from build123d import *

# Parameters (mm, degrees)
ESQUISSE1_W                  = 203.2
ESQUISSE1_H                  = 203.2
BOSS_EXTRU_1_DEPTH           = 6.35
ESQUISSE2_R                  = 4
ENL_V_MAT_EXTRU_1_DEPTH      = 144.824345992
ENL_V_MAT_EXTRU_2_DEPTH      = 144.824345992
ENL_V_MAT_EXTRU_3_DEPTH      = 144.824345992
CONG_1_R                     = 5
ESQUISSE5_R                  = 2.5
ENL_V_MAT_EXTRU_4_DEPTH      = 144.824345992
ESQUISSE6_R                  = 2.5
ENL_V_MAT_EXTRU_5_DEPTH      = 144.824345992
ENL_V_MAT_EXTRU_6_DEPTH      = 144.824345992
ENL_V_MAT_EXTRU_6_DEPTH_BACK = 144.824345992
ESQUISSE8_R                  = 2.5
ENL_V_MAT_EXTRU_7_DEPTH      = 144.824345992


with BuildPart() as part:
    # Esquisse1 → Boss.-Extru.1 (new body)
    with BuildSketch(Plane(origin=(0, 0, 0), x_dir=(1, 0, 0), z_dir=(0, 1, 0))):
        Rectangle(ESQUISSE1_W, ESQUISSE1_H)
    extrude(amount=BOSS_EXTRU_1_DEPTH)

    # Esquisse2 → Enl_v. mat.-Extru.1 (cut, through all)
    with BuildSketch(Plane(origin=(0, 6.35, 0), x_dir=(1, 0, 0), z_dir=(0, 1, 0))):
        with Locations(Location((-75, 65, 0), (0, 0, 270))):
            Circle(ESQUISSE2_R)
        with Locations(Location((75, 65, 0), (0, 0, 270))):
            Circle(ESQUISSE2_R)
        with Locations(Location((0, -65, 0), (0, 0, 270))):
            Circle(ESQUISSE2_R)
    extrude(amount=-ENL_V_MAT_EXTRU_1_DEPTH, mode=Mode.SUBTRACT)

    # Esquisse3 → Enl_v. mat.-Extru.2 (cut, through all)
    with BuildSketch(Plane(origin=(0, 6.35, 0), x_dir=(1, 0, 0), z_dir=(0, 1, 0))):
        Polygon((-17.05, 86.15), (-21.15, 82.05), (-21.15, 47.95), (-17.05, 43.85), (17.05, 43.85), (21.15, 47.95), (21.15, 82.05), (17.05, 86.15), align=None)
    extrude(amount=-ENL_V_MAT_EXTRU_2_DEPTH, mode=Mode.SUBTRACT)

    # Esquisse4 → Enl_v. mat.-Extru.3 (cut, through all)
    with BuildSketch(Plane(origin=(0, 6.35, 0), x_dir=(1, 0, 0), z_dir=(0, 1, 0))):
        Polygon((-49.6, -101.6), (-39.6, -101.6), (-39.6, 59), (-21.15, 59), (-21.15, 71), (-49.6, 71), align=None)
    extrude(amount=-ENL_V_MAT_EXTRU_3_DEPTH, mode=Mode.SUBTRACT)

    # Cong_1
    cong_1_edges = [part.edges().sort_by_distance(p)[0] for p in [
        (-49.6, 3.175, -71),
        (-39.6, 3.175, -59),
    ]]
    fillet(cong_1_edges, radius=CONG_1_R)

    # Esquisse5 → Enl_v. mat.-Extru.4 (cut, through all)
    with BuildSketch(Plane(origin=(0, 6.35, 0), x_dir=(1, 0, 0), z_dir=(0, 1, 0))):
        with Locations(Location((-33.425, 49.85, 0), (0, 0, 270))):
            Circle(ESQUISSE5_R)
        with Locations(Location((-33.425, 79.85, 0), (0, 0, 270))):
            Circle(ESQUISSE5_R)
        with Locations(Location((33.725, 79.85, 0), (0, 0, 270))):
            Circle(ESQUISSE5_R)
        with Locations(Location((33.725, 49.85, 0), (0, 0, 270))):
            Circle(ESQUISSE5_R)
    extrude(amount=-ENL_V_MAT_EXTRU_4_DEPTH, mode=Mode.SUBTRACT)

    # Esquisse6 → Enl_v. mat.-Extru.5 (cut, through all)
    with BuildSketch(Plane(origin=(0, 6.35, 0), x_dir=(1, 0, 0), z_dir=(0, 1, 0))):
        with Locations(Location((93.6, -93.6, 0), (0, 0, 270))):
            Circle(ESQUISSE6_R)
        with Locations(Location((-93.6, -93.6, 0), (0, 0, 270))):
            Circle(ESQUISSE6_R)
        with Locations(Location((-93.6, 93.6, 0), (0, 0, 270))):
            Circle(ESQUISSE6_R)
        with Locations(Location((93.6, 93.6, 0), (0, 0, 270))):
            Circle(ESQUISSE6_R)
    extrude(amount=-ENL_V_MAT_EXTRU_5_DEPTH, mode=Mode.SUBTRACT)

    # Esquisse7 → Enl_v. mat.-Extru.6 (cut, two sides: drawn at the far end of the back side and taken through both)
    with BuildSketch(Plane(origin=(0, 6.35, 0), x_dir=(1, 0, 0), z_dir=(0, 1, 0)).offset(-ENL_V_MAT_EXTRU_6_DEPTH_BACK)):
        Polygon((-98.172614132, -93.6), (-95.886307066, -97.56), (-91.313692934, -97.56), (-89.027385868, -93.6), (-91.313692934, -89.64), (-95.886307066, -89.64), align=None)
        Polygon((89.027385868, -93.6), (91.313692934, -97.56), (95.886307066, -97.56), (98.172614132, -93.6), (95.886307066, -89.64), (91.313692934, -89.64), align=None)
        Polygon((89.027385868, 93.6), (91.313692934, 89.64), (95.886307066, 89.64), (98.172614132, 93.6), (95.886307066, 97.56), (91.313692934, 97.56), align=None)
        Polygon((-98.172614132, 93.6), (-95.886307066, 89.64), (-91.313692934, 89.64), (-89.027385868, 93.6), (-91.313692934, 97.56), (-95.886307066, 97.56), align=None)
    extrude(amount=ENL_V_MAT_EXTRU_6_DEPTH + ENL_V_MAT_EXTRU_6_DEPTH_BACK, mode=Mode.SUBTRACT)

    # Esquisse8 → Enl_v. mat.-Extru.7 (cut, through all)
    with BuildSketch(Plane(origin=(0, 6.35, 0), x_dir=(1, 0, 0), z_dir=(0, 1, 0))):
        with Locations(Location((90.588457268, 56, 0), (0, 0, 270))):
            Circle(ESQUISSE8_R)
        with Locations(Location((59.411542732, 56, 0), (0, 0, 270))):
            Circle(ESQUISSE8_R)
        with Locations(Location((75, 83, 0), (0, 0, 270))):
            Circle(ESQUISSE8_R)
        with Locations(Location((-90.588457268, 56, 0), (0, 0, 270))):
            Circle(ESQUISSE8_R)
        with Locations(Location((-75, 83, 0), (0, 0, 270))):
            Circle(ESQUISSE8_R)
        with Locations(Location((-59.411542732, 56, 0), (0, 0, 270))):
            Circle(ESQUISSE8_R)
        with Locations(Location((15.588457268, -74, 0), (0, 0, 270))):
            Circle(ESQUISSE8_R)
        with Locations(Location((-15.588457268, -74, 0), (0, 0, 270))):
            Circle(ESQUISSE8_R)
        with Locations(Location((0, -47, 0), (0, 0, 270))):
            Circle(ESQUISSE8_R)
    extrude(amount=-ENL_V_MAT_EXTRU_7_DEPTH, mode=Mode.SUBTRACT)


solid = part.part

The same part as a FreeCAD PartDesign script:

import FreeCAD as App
import Part
import Sketcher

V = App.Vector
Q = App.Units.Quantity


def edges_at(feature, points):
    """Names of the edges that pass closest to the given points."""
    edges = feature.Shape.Edges
    near = lambda p: min(range(len(edges)), key=lambda i: edges[i].distToShape(Part.Vertex(*p))[0])
    return sorted({f"Edge{near(p) + 1}" for p in points})

doc = App.newDocument("Part")
body = doc.addObject("PartDesign::Body", "Body")

sketch1 = doc.addObject("Sketcher::SketchObject", "Sketch")
body.addObject(sketch1)
sketch1.AttachmentSupport = (doc.XZ_Plane, [""])
sketch1.MapMode = "FlatFace"
sketch1.addGeometry([
    Part.LineSegment(V(-102, -102, 0), V(-102, 102, 0)),
    Part.LineSegment(V(-102, 102, 0), V(102, 102, 0)),
    Part.LineSegment(V(102, 102, 0), V(102, -102, 0)),
    Part.LineSegment(V(102, -102, 0), V(-102, -102, 0)),
], False)
sketch1.addConstraint([
    Sketcher.Constraint("Coincident", 0, 2, 1, 1),
    Sketcher.Constraint("Coincident", 1, 2, 2, 1),
    Sketcher.Constraint("Coincident", 2, 2, 3, 1),
    Sketcher.Constraint("Coincident", 3, 2, 0, 1),
    Sketcher.Constraint("Vertical", 0),
    Sketcher.Constraint("Horizontal", 1),
    Sketcher.Constraint("Vertical", 2),
    Sketcher.Constraint("Horizontal", 3),
    Sketcher.Constraint("Symmetric", 0, 2, 2, 2, -1, 1),
    Sketcher.Constraint("Equal", 3, 0),
    Sketcher.Constraint("DistanceX", 1, 1, 1, 2, 203.2),
])
pad1 = doc.addObject("PartDesign::Pad", "Pad")
body.addObject(pad1)
pad1.Profile = sketch1
pad1.Length = 6.35
pad1.Reversed = True

sketch2 = doc.addObject("Sketcher::SketchObject", "Sketch001")
body.addObject(sketch2)
sketch2.AttachmentSupport = (doc.XZ_Plane, [""])
sketch2.MapMode = "FlatFace"
sketch2.AttachmentOffset = App.Placement(V(0, 0, -6.35), App.Rotation())
sketch2.addGeometry([
    Part.Circle(V(-75, -65, 0), V(0, 0, 1), 4),
    Part.Circle(V(75, -65, 0), V(0, 0, 1), 4),
    Part.Circle(V(0, 65, 0), V(0, 0, 1), 4),
], False)
sketch2.addConstraint([
    Sketcher.Constraint("Equal", 0, 1),
    Sketcher.Constraint("Equal", 1, 2),
    Sketcher.Constraint("Symmetric", 0, 3, 1, 3, -2),
    Sketcher.Constraint("PointOnObject", 2, 3, -2),
    Sketcher.Constraint("Diameter", 0, 8.0),
    Sketcher.Constraint("DistanceX", 0, 3, -1, 1, 75.0),
    Sketcher.Constraint("DistanceY", 0, 3, -1, 1, 65.0),
    Sketcher.Constraint("DistanceY", -1, 1, 2, 3, 65.0),
])
pocket1 = doc.addObject("PartDesign::Pocket", "Pocket")
body.addObject(pocket1)
pocket1.Profile = sketch2
pocket1.Type = "ThroughAll"
pocket1.Reversed = True

sketch3 = doc.addObject("Sketcher::SketchObject", "Sketch002")
body.addObject(sketch3)
sketch3.AttachmentSupport = (doc.XZ_Plane, [""])
sketch3.MapMode = "FlatFace"
sketch3.AttachmentOffset = App.Placement(V(0, 0, -6.35), App.Rotation())
sketch3.addGeometry([
    Part.LineSegment(V(-17, -86, 0), V(-21, -82, 0)),
    Part.LineSegment(V(-21, -82, 0), V(-21, -48, 0)),
    Part.LineSegment(V(-21, -48, 0), V(-17, -44, 0)),
    Part.LineSegment(V(-17, -44, 0), V(17, -44, 0)),
    Part.LineSegment(V(17, -44, 0), V(21, -48, 0)),
    Part.LineSegment(V(21, -48, 0), V(21, -82, 0)),
    Part.LineSegment(V(21, -82, 0), V(17, -86, 0)),
    Part.LineSegment(V(17, -86, 0), V(-17, -86, 0)),
], False)
sketch3.addConstraint([
    Sketcher.Constraint("Coincident", 0, 2, 1, 1),
    Sketcher.Constraint("Coincident", 1, 2, 2, 1),
    Sketcher.Constraint("Coincident", 2, 2, 3, 1),
    Sketcher.Constraint("Coincident", 3, 2, 4, 1),
    Sketcher.Constraint("Coincident", 4, 2, 5, 1),
    Sketcher.Constraint("Coincident", 5, 2, 6, 1),
    Sketcher.Constraint("Coincident", 6, 2, 7, 1),
    Sketcher.Constraint("Coincident", 7, 2, 0, 1),
    Sketcher.Constraint("Vertical", 1),
    Sketcher.Constraint("Horizontal", 3),
    Sketcher.Constraint("Vertical", 5),
    Sketcher.Constraint("Horizontal", 7),
    Sketcher.Constraint("Symmetric", 1, 2, 4, 2, -2),
    Sketcher.Constraint("Perpendicular", 0, 2),
    Sketcher.Constraint("Perpendicular", 2, 4),
    Sketcher.Constraint("Perpendicular", 4, 6),
    Sketcher.Constraint("Horizontal", 0, 2, 5, 2),
    Sketcher.Constraint("Vertical", 3, 2, 6, 2),
    Sketcher.Constraint("Vertical", 2, 2, 7, 2),
    Sketcher.Constraint("Equal", 7, 1),
    Sketcher.Constraint("DistanceX", 3, 1, 3, 2, 34.1),
    Sketcher.Constraint("DistanceX", 1, 2, 2, 2, 4.1),
    Sketcher.Constraint("DistanceY", 0, 2, -1, 1, 82.05),
])
pocket2 = doc.addObject("PartDesign::Pocket", "Pocket001")
body.addObject(pocket2)
pocket2.Profile = sketch3
pocket2.Type = "ThroughAll"
pocket2.Reversed = True

sketch4 = doc.addObject("Sketcher::SketchObject", "Sketch003")
body.addObject(sketch4)
sketch4.AttachmentSupport = (doc.XZ_Plane, [""])
sketch4.MapMode = "FlatFace"
sketch4.AttachmentOffset = App.Placement(V(0, 0, -6.35), App.Rotation())
sketch4.addGeometry([
    Part.LineSegment(V(-50, 102, 0), V(-40, 102, 0)),
    Part.LineSegment(V(-40, 102, 0), V(-40, -59, 0)),
    Part.LineSegment(V(-40, -59, 0), V(-21, -59, 0)),
    Part.LineSegment(V(-21, -59, 0), V(-21, -71, 0)),
    Part.LineSegment(V(-21, -71, 0), V(-50, -71, 0)),
    Part.LineSegment(V(-50, -71, 0), V(-50, 102, 0)),
], False)
sketch4.addConstraint([
    Sketcher.Constraint("Coincident", 0, 2, 1, 1),
    Sketcher.Constraint("Coincident", 1, 2, 2, 1),
    Sketcher.Constraint("Coincident", 2, 2, 3, 1),
    Sketcher.Constraint("Coincident", 3, 2, 4, 1),
    Sketcher.Constraint("Coincident", 4, 2, 5, 1),
    Sketcher.Constraint("Coincident", 5, 2, 0, 1),
    Sketcher.Constraint("Horizontal", 0),
    Sketcher.Constraint("Vertical", 1),
    Sketcher.Constraint("Horizontal", 2),
    Sketcher.Constraint("Vertical", 3),
    Sketcher.Constraint("Horizontal", 4),
    Sketcher.Constraint("Vertical", 5),
    Sketcher.Constraint("DistanceX", 0, 1, 0, 2, 10.0),
    Sketcher.Constraint("DistanceY", 3, 2, 3, 1, 12.0),
    Sketcher.Constraint("DistanceY", 1, 2, 1, 1, 160.6),
    Sketcher.Constraint("DistanceY", 1, 2, -1, 1, 59.0),
    Sketcher.Constraint("DistanceX", 2, 1, 2, 2, 18.45),
    Sketcher.Constraint("DistanceX", 0, 2, -1, 1, 39.6),
])
pocket3 = doc.addObject("PartDesign::Pocket", "Pocket002")
body.addObject(pocket3)
pocket3.Profile = sketch4
pocket3.Type = "ThroughAll"
pocket3.Reversed = True
doc.recompute()

fillet = doc.addObject("PartDesign::Fillet", "Fillet")
body.addObject(fillet)
fillet.Base = (pocket3, edges_at(pocket3, [(-49.6, 3.175, -71), (-39.6, 3.175, -59)]))
fillet.Radius = 5

sketch5 = doc.addObject("Sketcher::SketchObject", "Sketch004")
body.addObject(sketch5)
sketch5.AttachmentSupport = (doc.XZ_Plane, [""])
sketch5.MapMode = "FlatFace"
sketch5.AttachmentOffset = App.Placement(V(0, 0, -6.35), App.Rotation())
sketch5.addGeometry([
    Part.Circle(V(-33.4, -49.9, 0), V(0, 0, 1), 2.5),
    Part.Circle(V(-33.4, -79.8, 0), V(0, 0, 1), 2.5),
    Part.Circle(V(33.7, -79.8, 0), V(0, 0, 1), 2.5),
    Part.Circle(V(33.7, -49.9, 0), V(0, 0, 1), 2.5),
], False)
sketch5.addConstraint([
    Sketcher.Constraint("Equal", 0, 1),
    Sketcher.Constraint("Equal", 1, 2),
    Sketcher.Constraint("Equal", 2, 3),
    Sketcher.Constraint("Horizontal", 1, 3, 2, 3),
    Sketcher.Constraint("Horizontal", 0, 3, 3, 3),
    Sketcher.Constraint("Vertical", 0, 3, 1, 3),
    Sketcher.Constraint("Vertical", 2, 3, 3, 3),
    Sketcher.Constraint("Diameter", 0, 5.0),
    Sketcher.Constraint("DistanceY", 1, 3, 0, 3, 30.0),
    Sketcher.Constraint("DistanceY", 0, 3, -1, 1, 49.85),
    Sketcher.Constraint("DistanceX", 1, 3, 2, 3, 67.15),
    Sketcher.Constraint("DistanceX", 0, 3, -1, 1, 33.425),
])
pocket4 = doc.addObject("PartDesign::Pocket", "Pocket003")
body.addObject(pocket4)
pocket4.Profile = sketch5
pocket4.Type = "ThroughAll"
pocket4.Reversed = True

sketch6 = doc.addObject("Sketcher::SketchObject", "Sketch005")
body.addObject(sketch6)
sketch6.AttachmentSupport = (doc.XZ_Plane, [""])
sketch6.MapMode = "FlatFace"
sketch6.AttachmentOffset = App.Placement(V(0, 0, -6.35), App.Rotation())
sketch6.addGeometry([
    Part.Circle(V(93.6, 93.6, 0), V(0, 0, 1), 2.5),
    Part.Circle(V(-93.6, 93.6, 0), V(0, 0, 1), 2.5),
    Part.Circle(V(-93.6, -93.6, 0), V(0, 0, 1), 2.5),
    Part.Circle(V(93.6, -93.6, 0), V(0, 0, 1), 2.5),
], False)
sketch6.addConstraint([
    Sketcher.Constraint("Equal", 0, 1),
    Sketcher.Constraint("Equal", 1, 2),
    Sketcher.Constraint("Equal", 2, 3),
    Sketcher.Constraint("Symmetric", 0, 3, 2, 3, -1, 1),
    Sketcher.Constraint("Symmetric", 1, 3, 3, 3, -1, 1),
    Sketcher.Constraint("Symmetric", 0, 3, 1, 3, -2),
    Sketcher.Constraint("Diameter", 0, 5.0),
    Sketcher.Constraint("DistanceX", -1, 1, 0, 3, 93.6),
    Sketcher.Constraint("DistanceY", -1, 1, 0, 3, 93.6),
])
pocket5 = doc.addObject("PartDesign::Pocket", "Pocket004")
body.addObject(pocket5)
pocket5.Profile = sketch6
pocket5.Type = "ThroughAll"
pocket5.Reversed = True

sketch7 = doc.addObject("Sketcher::SketchObject", "Sketch006")
body.addObject(sketch7)
sketch7.AttachmentSupport = (doc.XZ_Plane, [""])
sketch7.MapMode = "FlatFace"
sketch7.AttachmentOffset = App.Placement(V(0, 0, -6.35), App.Rotation())
sketch7.addGeometry([
    Part.LineSegment(V(-98.2, 93.6, 0), V(-95.9, 97.6, 0)),
    Part.LineSegment(V(-95.9, 97.6, 0), V(-91.3, 97.6, 0)),
    Part.LineSegment(V(-91.3, 97.6, 0), V(-89, 93.6, 0)),
    Part.LineSegment(V(-89, 93.6, 0), V(-91.3, 89.6, 0)),
    Part.LineSegment(V(-91.3, 89.6, 0), V(-95.9, 89.6, 0)),
    Part.LineSegment(V(-95.9, 89.6, 0), V(-98.2, 93.6, 0)),
    Part.LineSegment(V(89, 93.6, 0), V(91.3, 97.6, 0)),
    Part.LineSegment(V(91.3, 97.6, 0), V(95.9, 97.6, 0)),
    Part.LineSegment(V(95.9, 97.6, 0), V(98.2, 93.6, 0)),
    Part.LineSegment(V(98.2, 93.6, 0), V(95.9, 89.6, 0)),
    Part.LineSegment(V(95.9, 89.6, 0), V(91.3, 89.6, 0)),
    Part.LineSegment(V(91.3, 89.6, 0), V(89, 93.6, 0)),
    Part.LineSegment(V(89, -93.6, 0), V(91.3, -89.6, 0)),
    Part.LineSegment(V(91.3, -89.6, 0), V(95.9, -89.6, 0)),
    Part.LineSegment(V(95.9, -89.6, 0), V(98.2, -93.6, 0)),
    Part.LineSegment(V(98.2, -93.6, 0), V(95.9, -97.6, 0)),
    Part.LineSegment(V(95.9, -97.6, 0), V(91.3, -97.6, 0)),
    Part.LineSegment(V(91.3, -97.6, 0), V(89, -93.6, 0)),
    Part.LineSegment(V(-98.2, -93.6, 0), V(-95.9, -89.6, 0)),
    Part.LineSegment(V(-95.9, -89.6, 0), V(-91.3, -89.6, 0)),
    Part.LineSegment(V(-91.3, -89.6, 0), V(-89, -93.6, 0)),
    Part.LineSegment(V(-89, -93.6, 0), V(-91.3, -97.6, 0)),
    Part.LineSegment(V(-91.3, -97.6, 0), V(-95.9, -97.6, 0)),
    Part.LineSegment(V(-95.9, -97.6, 0), V(-98.2, -93.6, 0)),
], False)
sketch7.addConstraint([
    Sketcher.Constraint("Coincident", 0, 2, 1, 1),
    Sketcher.Constraint("Coincident", 1, 2, 2, 1),
    Sketcher.Constraint("Coincident", 2, 2, 3, 1),
    Sketcher.Constraint("Coincident", 3, 2, 4, 1),
    Sketcher.Constraint("Coincident", 4, 2, 5, 1),
    Sketcher.Constraint("Coincident", 5, 2, 0, 1),
    Sketcher.Constraint("Coincident", 6, 2, 7, 1),
    Sketcher.Constraint("Coincident", 7, 2, 8, 1),
    Sketcher.Constraint("Coincident", 8, 2, 9, 1),
    Sketcher.Constraint("Coincident", 9, 2, 10, 1),
    Sketcher.Constraint("Coincident", 10, 2, 11, 1),
    Sketcher.Constraint("Coincident", 11, 2, 6, 1),
    Sketcher.Constraint("Coincident", 12, 2, 13, 1),
    Sketcher.Constraint("Coincident", 13, 2, 14, 1),
    Sketcher.Constraint("Coincident", 14, 2, 15, 1),
    Sketcher.Constraint("Coincident", 15, 2, 16, 1),
    Sketcher.Constraint("Coincident", 16, 2, 17, 1),
    Sketcher.Constraint("Coincident", 17, 2, 12, 1),
    Sketcher.Constraint("Coincident", 18, 2, 19, 1),
    Sketcher.Constraint("Coincident", 19, 2, 20, 1),
    Sketcher.Constraint("Coincident", 20, 2, 21, 1),
    Sketcher.Constraint("Coincident", 21, 2, 22, 1),
    Sketcher.Constraint("Coincident", 22, 2, 23, 1),
    Sketcher.Constraint("Coincident", 23, 2, 18, 1),
    Sketcher.Constraint("Horizontal", 1),
    Sketcher.Constraint("Horizontal", 4),
    Sketcher.Constraint("Horizontal", 7),
    Sketcher.Constraint("Horizontal", 10),
    Sketcher.Constraint("Horizontal", 13),
    Sketcher.Constraint("Horizontal", 16),
    Sketcher.Constraint("Horizontal", 19),
    Sketcher.Constraint("Horizontal", 22),
    Sketcher.Constraint("Symmetric", 3, 2, 12, 2, -1, 1),
    Sketcher.Constraint("Symmetric", 5, 2, 14, 2, -1, 1),
    Sketcher.Constraint("Symmetric", 0, 2, 15, 2, -1, 1),
    Sketcher.Constraint("Symmetric", 2, 2, 17, 2, -1, 1),
    Sketcher.Constraint("Symmetric", 9, 2, 18, 2, -1, 1),
    Sketcher.Constraint("Symmetric", 11, 2, 20, 2, -1, 1),
    Sketcher.Constraint("Symmetric", 6, 2, 21, 2, -1, 1),
    Sketcher.Constraint("Symmetric", 8, 2, 23, 2, -1, 1),
    Sketcher.Constraint("Symmetric", 1, 2, 6, 2, -2),
    Sketcher.Constraint("Symmetric", 5, 2, 8, 2, -2),
    Sketcher.Constraint("Symmetric", 4, 2, 9, 2, -2),
    Sketcher.Constraint("Symmetric", 2, 2, 11, 2, -2),
    Sketcher.Constraint("Parallel", 0, 3),
    Sketcher.Constraint("Parallel", 2, 5),
    Sketcher.Constraint("Parallel", 3, 6),
    Sketcher.Constraint("Parallel", 5, 8),
    Sketcher.Constraint("Parallel", 8, 11),
    Sketcher.Constraint("Parallel", 11, 14),
    Sketcher.Constraint("Parallel", 14, 17),
    Sketcher.Constraint("Parallel", 17, 20),
    Sketcher.Constraint("Parallel", 20, 23),
    Sketcher.Constraint("Horizontal", 2, 2, 5, 2),
    Sketcher.Constraint("Vertical", 1, 2, 3, 2),
    Sketcher.Constraint("Angle", 0, Q("60 deg")),
    Sketcher.Constraint("DistanceY", -1, 1, 2, 2, 93.6),
    Sketcher.Constraint("DistanceX", 0, 2, 6, 2, 187.2),
    Sketcher.Constraint("DistanceY", -1, 1, 0, 2, 97.56),
    Sketcher.Constraint("DistanceX", 1, 1, 1, 2, 4.572614),
])
pocket6 = doc.addObject("PartDesign::Pocket", "Pocket005")
body.addObject(pocket6)
pocket6.Profile = sketch7
pocket6.Type = "ThroughAll"
pocket6.Midplane = True

sketch8 = doc.addObject("Sketcher::SketchObject", "Sketch007")
body.addObject(sketch8)
sketch8.AttachmentSupport = (doc.XZ_Plane, [""])
sketch8.MapMode = "FlatFace"
sketch8.AttachmentOffset = App.Placement(V(0, 0, -6.35), App.Rotation())
sketch8.addGeometry([
    Part.Circle(V(90.6, -56, 0), V(0, 0, 1), 2.5),
    Part.Circle(V(59.4, -56, 0), V(0, 0, 1), 2.5),
    Part.Circle(V(75, -83, 0), V(0, 0, 1), 2.5),
    Part.Circle(V(-90.6, -56, 0), V(0, 0, 1), 2.5),
    Part.Circle(V(-75, -83, 0), V(0, 0, 1), 2.5),
    Part.Circle(V(-59.4, -56, 0), V(0, 0, 1), 2.5),
    Part.Circle(V(15.6, 74, 0), V(0, 0, 1), 2.5),
    Part.Circle(V(-15.6, 74, 0), V(0, 0, 1), 2.5),
    Part.Circle(V(0, 47, 0), V(0, 0, 1), 2.5),
], False)
sketch8.addConstraint([
    Sketcher.Constraint("Equal", 0, 1),
    Sketcher.Constraint("Equal", 1, 2),
    Sketcher.Constraint("Equal", 2, 3),
    Sketcher.Constraint("Equal", 3, 4),
    Sketcher.Constraint("Equal", 4, 5),
    Sketcher.Constraint("Equal", 5, 6),
    Sketcher.Constraint("Equal", 6, 7),
    Sketcher.Constraint("Equal", 7, 8),
    Sketcher.Constraint("Symmetric", 0, 3, 3, 3, -2),
    Sketcher.Constraint("Symmetric", 2, 3, 4, 3, -2),
    Sketcher.Constraint("Symmetric", 1, 3, 5, 3, -2),
    Sketcher.Constraint("Symmetric", 6, 3, 7, 3, -2),
    Sketcher.Constraint("PointOnObject", 8, 3, -2),
    Sketcher.Constraint("Horizontal", 0, 3, 1, 3),
    Sketcher.Constraint("Diameter", 0, 5.0),
    Sketcher.Constraint("DistanceY", 0, 3, -1, 1, 56.0),
    Sketcher.Constraint("DistanceX", -1, 1, 2, 3, 75.0),
    Sketcher.Constraint("DistanceY", 2, 3, -1, 1, 83.0),
    Sketcher.Constraint("DistanceY", -1, 1, 6, 3, 74.0),
    Sketcher.Constraint("DistanceY", -1, 1, 8, 3, 47.0),
    Sketcher.Constraint("DistanceX", 3, 3, 1, 3, 150.0),
    Sketcher.Constraint("DistanceX", 6, 3, 0, 3, 75.0),
    Sketcher.Constraint("DistanceX", -1, 1, 0, 3, 90.588457),
])
pocket7 = doc.addObject("PartDesign::Pocket", "Pocket006")
body.addObject(pocket7)
pocket7.Profile = sketch8
pocket7.Type = "ThroughAll"
pocket7.Reversed = True

doc.recompute()
